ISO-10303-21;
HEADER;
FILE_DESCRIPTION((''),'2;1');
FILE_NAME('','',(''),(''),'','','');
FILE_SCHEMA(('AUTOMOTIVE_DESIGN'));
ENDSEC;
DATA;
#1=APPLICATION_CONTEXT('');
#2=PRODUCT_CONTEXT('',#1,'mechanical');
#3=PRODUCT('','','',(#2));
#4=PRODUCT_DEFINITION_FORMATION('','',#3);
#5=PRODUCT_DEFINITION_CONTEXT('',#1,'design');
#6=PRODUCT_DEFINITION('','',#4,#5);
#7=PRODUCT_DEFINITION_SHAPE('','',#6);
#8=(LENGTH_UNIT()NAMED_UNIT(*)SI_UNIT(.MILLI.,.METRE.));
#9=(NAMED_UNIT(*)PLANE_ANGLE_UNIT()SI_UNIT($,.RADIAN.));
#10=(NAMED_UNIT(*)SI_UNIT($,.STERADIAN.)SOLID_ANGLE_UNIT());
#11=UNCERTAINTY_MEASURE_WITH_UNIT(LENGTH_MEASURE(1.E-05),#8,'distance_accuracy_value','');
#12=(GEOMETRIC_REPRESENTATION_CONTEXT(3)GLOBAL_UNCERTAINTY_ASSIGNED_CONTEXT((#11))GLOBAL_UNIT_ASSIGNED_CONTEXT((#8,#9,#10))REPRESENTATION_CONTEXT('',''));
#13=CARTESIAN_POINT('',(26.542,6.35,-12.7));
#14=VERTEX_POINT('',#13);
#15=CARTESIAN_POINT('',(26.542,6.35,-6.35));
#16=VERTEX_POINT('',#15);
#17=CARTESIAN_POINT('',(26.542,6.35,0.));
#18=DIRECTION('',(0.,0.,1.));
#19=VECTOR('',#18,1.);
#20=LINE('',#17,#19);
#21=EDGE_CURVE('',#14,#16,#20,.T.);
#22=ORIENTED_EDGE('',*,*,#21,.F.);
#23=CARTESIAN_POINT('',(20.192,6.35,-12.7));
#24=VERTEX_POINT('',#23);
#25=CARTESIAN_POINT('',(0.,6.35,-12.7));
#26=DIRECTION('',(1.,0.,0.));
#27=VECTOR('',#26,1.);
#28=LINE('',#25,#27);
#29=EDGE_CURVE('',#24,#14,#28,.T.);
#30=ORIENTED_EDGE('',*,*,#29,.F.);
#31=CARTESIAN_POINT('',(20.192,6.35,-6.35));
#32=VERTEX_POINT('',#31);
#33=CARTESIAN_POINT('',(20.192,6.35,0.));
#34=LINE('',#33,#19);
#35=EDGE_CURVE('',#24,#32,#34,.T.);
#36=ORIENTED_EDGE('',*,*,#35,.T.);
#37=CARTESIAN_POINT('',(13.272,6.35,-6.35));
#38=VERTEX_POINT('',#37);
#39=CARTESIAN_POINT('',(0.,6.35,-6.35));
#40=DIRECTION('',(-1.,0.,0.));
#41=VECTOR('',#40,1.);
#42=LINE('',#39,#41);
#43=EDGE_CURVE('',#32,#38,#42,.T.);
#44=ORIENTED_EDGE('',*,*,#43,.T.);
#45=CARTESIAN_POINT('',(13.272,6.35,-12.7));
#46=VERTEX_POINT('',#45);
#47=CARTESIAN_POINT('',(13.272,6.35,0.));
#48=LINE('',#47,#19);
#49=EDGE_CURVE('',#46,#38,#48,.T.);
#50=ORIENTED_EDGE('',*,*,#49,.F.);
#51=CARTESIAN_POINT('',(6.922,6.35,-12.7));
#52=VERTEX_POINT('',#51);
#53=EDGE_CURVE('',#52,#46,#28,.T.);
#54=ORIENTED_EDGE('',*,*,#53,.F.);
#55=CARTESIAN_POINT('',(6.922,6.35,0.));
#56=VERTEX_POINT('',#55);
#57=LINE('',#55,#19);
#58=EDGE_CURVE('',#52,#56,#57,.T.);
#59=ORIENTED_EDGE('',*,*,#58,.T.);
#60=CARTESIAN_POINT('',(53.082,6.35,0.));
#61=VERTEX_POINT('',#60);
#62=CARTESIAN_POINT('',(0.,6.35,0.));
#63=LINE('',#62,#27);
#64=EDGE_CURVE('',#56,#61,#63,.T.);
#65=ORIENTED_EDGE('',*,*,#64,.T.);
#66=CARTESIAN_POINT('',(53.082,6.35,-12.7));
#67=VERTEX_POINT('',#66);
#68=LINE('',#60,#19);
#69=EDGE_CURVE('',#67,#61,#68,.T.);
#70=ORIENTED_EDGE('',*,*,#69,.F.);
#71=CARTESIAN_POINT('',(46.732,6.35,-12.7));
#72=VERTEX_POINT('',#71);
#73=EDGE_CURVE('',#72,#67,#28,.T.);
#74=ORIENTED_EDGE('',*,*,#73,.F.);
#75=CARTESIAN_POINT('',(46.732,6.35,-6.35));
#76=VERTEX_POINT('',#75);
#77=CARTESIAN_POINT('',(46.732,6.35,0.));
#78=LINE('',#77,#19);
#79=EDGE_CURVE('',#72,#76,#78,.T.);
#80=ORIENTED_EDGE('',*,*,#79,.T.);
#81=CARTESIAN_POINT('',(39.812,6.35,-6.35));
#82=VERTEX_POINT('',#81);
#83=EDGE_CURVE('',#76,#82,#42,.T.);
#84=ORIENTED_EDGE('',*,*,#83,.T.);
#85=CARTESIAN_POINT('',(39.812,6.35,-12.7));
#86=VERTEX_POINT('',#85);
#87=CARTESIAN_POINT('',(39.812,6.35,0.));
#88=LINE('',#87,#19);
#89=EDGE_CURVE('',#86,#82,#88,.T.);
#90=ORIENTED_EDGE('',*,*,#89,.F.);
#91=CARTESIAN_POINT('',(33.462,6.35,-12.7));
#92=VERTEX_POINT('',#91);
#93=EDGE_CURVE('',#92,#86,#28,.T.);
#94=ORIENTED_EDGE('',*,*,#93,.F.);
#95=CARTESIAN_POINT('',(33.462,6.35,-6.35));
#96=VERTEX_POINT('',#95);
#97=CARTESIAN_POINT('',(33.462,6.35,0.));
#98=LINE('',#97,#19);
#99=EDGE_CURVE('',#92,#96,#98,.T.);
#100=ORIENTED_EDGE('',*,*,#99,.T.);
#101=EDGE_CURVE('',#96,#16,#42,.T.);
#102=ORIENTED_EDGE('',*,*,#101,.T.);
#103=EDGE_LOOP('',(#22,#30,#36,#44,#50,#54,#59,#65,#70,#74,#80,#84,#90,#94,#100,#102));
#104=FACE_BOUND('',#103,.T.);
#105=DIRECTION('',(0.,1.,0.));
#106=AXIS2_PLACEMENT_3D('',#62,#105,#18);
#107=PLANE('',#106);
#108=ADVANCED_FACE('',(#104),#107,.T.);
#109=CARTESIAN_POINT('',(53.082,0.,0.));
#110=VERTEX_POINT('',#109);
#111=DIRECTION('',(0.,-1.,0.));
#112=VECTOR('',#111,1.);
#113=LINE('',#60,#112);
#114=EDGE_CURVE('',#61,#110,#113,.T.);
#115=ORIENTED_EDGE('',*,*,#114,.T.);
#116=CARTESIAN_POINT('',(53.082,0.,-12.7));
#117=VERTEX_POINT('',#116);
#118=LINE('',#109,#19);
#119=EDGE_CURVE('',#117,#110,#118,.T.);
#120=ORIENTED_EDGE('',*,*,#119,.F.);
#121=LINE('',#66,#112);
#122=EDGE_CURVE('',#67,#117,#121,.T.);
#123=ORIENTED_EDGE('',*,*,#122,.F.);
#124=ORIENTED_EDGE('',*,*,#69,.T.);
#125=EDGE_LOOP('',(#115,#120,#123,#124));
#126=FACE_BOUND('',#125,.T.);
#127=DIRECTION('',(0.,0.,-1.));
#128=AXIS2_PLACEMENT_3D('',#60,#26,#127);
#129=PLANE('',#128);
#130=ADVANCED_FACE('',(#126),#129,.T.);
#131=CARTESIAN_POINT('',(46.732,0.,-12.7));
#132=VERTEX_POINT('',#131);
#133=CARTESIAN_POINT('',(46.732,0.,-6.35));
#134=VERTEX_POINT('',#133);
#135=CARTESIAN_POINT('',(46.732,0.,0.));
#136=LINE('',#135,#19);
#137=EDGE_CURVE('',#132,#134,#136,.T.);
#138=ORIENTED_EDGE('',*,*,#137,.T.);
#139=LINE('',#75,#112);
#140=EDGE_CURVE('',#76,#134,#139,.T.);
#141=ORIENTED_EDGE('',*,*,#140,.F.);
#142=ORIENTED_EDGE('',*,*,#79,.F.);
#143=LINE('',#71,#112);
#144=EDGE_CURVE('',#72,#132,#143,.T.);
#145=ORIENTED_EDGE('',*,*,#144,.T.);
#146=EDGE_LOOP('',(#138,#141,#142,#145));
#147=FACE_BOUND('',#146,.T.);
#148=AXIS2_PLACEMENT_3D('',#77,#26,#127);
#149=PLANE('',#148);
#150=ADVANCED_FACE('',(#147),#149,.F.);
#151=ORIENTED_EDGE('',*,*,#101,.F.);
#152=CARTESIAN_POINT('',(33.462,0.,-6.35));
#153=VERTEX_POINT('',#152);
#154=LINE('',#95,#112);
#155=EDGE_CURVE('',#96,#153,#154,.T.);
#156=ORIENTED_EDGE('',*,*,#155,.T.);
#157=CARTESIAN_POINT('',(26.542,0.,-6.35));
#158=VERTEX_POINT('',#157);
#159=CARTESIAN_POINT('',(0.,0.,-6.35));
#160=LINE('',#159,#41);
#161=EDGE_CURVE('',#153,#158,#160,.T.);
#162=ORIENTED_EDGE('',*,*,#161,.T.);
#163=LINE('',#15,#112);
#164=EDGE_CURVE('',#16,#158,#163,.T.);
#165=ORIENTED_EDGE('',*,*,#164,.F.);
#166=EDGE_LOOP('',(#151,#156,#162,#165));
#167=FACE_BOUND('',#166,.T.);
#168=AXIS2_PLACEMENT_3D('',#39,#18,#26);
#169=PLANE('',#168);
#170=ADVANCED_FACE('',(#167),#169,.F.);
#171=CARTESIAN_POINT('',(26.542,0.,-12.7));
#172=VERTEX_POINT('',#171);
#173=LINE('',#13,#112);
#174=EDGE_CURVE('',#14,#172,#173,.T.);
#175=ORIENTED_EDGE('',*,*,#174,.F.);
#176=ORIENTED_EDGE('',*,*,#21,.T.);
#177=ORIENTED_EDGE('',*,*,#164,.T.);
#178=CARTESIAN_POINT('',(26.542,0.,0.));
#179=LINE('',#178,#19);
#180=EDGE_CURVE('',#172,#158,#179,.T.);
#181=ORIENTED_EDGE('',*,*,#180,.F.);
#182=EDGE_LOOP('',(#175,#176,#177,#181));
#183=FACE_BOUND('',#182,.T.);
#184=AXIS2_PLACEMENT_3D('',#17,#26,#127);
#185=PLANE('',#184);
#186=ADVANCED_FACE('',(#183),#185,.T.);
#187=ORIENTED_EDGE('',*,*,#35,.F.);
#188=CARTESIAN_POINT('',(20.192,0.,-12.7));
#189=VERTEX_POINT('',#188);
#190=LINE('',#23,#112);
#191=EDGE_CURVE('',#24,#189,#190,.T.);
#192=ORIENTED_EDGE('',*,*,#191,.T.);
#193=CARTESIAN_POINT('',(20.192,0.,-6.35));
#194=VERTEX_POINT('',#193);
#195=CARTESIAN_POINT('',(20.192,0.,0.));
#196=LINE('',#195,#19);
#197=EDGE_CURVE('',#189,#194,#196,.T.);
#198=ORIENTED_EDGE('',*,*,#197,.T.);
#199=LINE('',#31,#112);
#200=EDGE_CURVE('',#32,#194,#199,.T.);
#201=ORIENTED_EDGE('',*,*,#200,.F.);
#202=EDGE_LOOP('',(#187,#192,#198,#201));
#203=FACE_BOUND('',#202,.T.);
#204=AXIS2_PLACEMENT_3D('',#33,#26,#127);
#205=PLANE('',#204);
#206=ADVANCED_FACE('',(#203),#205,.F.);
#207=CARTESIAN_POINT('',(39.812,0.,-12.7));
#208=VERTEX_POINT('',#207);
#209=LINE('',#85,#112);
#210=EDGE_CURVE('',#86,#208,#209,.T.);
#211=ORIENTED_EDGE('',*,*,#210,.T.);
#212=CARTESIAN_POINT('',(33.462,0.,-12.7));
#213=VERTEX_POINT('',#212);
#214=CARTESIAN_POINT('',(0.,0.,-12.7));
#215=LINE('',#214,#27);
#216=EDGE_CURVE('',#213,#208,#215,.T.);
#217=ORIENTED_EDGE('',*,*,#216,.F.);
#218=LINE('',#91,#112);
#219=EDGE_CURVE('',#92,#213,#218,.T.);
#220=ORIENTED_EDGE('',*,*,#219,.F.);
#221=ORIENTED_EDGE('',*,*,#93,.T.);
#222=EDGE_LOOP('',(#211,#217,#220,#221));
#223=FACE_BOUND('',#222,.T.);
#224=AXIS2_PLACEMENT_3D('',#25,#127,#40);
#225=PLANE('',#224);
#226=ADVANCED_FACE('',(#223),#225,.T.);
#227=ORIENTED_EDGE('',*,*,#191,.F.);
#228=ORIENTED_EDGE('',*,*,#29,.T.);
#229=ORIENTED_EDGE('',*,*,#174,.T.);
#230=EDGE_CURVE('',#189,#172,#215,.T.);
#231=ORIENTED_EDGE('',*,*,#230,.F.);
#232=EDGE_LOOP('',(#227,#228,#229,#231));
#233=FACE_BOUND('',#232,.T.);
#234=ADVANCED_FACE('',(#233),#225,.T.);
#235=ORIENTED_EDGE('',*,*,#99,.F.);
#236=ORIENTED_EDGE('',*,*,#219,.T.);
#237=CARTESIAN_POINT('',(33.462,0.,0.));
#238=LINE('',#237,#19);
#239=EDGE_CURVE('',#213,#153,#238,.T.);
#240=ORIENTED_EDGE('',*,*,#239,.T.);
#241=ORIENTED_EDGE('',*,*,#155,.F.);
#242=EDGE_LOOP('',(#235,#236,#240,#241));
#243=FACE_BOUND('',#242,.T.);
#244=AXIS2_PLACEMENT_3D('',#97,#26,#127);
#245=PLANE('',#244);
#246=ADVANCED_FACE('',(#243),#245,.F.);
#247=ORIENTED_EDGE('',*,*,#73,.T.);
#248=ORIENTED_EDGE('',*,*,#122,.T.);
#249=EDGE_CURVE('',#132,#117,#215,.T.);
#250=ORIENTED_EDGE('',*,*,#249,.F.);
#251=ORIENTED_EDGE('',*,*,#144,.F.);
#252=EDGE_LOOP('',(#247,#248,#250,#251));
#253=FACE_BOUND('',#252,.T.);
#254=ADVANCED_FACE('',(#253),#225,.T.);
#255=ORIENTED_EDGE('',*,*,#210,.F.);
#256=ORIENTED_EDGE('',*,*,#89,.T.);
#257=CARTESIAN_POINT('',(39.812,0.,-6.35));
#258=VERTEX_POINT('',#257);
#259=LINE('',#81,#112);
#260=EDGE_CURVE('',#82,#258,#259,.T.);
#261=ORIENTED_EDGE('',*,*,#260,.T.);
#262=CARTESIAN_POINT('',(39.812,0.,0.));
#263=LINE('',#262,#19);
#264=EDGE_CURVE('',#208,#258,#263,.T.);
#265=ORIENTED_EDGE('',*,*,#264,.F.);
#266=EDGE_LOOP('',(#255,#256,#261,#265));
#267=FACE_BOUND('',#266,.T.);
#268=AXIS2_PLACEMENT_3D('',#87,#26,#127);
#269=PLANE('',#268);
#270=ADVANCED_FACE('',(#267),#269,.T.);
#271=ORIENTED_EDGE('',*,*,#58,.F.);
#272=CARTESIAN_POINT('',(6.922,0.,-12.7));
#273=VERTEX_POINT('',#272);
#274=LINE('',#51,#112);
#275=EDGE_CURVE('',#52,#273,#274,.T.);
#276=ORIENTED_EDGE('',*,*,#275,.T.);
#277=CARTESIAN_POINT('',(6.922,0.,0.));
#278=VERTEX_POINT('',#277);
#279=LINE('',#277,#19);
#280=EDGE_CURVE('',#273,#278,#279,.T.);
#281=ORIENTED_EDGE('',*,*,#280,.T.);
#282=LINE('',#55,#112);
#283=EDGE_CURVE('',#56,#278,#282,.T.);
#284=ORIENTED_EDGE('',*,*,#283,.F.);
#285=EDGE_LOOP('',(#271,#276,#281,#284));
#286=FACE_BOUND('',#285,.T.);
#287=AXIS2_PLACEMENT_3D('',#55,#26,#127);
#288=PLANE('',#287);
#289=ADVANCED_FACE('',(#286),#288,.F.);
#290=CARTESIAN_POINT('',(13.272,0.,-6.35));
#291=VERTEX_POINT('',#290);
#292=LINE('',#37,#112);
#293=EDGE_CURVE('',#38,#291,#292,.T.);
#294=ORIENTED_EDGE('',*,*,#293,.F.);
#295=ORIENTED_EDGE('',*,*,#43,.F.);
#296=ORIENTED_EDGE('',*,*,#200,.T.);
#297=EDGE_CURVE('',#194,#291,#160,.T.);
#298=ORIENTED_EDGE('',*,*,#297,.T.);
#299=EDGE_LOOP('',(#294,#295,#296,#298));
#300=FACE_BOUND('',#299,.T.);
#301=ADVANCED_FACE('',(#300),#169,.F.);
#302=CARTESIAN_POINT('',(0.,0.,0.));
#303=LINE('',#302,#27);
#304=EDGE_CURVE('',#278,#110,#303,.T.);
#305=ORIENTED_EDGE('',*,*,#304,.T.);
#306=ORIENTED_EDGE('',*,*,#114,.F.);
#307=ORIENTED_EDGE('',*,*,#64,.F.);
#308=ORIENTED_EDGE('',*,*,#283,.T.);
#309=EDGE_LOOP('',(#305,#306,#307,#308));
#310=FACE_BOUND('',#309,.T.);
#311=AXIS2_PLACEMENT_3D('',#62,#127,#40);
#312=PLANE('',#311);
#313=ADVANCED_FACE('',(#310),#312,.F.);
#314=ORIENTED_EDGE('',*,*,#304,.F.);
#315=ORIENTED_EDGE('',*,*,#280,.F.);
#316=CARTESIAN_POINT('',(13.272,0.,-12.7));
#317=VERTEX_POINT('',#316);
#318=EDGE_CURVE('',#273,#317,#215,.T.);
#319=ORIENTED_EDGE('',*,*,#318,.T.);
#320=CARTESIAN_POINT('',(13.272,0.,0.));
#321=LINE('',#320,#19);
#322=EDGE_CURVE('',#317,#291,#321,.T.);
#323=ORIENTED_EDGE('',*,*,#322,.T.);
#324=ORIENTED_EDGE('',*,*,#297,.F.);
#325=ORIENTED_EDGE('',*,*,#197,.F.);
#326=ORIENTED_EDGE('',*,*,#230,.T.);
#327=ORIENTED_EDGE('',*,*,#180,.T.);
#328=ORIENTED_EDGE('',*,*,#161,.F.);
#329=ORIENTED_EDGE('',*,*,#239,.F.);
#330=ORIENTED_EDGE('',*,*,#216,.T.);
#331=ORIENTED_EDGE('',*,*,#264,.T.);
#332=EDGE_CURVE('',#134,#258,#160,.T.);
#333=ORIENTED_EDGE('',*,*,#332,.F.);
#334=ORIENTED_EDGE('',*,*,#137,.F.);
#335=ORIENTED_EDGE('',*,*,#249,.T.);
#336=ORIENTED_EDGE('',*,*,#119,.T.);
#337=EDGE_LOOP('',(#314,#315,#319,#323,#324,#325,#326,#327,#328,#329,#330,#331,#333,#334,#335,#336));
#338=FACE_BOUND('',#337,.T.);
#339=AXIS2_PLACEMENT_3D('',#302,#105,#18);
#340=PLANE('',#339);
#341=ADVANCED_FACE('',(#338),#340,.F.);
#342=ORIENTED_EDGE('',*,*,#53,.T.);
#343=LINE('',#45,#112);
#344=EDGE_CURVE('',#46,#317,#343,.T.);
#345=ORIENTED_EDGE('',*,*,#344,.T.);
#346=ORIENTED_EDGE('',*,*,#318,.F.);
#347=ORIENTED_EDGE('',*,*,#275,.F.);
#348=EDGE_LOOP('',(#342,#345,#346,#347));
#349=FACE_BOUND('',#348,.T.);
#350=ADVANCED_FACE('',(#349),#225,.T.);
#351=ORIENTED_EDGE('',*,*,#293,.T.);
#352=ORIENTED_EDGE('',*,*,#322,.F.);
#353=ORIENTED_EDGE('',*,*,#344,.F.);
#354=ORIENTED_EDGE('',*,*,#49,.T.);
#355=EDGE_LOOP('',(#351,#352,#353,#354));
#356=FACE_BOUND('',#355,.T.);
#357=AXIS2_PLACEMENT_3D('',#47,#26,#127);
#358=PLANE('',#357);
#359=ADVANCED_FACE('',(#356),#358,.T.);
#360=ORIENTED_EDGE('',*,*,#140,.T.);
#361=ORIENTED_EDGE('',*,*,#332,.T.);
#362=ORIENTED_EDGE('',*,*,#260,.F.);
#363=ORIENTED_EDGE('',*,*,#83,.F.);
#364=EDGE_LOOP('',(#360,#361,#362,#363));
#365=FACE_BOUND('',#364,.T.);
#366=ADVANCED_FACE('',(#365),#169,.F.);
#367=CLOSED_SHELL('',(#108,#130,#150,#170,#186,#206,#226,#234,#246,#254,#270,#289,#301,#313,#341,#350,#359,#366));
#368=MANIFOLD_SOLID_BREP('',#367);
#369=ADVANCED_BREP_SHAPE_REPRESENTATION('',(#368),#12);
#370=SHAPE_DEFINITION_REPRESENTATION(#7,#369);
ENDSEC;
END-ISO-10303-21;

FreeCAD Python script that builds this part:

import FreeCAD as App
import Part
import Sketcher
Q = App.Units.Quantity


def add_polygon(sketch, points):
    """Adds a closed chain of lines whose ends are joined by coincident constraints."""
    first, n = sketch.GeometryCount, len(points)
    for a, b in zip(points, points[1:] + points[:1]):
        sketch.addGeometry(Part.LineSegment(App.Vector(*a, 0), App.Vector(*b, 0)), False)
    for i in range(n):
        sketch.addConstraint(Sketcher.Constraint("Coincident", first + i, 2, first + (i + 1) % n, 1))

doc = App.newDocument("Part")
body = doc.addObject("PartDesign::Body", "Body")

sketch1 = body.newObject("Sketcher::SketchObject", "Sketch")
sketch1.AttachmentSupport = (doc.getObject("XZ_Plane"), [""])
sketch1.MapMode = "FlatFace"
add_polygon(sketch1, [(7, 0), (53, 0), (53, -13), (47, -13), (47, -6), (40, -6), (40, -13), (33, -13), (33, -6), (27, -6), (27, -13), (20, -13), (20, -6), (13, -6), (13, -13), (7, -13)])
sketch1.addConstraint(Sketcher.Constraint("Horizontal", 0))
sketch1.addConstraint(Sketcher.Constraint("Vertical", 1))
sketch1.addConstraint(Sketcher.Constraint("Horizontal", 2))
sketch1.addConstraint(Sketcher.Constraint("Vertical", 3))
sketch1.addConstraint(Sketcher.Constraint("Horizontal", 4))
sketch1.addConstraint(Sketcher.Constraint("Vertical", 5))
sketch1.addConstraint(Sketcher.Constraint("Horizontal", 6))
sketch1.addConstraint(Sketcher.Constraint("Vertical", 7))
sketch1.addConstraint(Sketcher.Constraint("Horizontal", 8))
sketch1.addConstraint(Sketcher.Constraint("Vertical", 9))
sketch1.addConstraint(Sketcher.Constraint("Horizontal", 10))
sketch1.addConstraint(Sketcher.Constraint("Vertical", 11))
sketch1.addConstraint(Sketcher.Constraint("Horizontal", 12))
sketch1.addConstraint(Sketcher.Constraint("Vertical", 13))
sketch1.addConstraint(Sketcher.Constraint("Horizontal", 14))
sketch1.addConstraint(Sketcher.Constraint("Vertical", 15))
sketch1.addConstraint(Sketcher.Constraint("PointOnObject", 0, 2, -1))
sketch1.addConstraint(Sketcher.Constraint("Horizontal", 2, 2, 5, 2))
sketch1.addConstraint(Sketcher.Constraint("Horizontal", 4, 2, 7, 2))
sketch1.addConstraint(Sketcher.Constraint("Horizontal", 6, 2, 9, 2))
sketch1.addConstraint(Sketcher.Constraint("Horizontal", 8, 2, 11, 2))
sketch1.addConstraint(Sketcher.Constraint("Horizontal", 10, 2, 13, 2))
sketch1.addConstraint(Sketcher.Constraint("Equal", 2, 6))
sketch1.addConstraint(Sketcher.Constraint("Equal", 4, 8))
sketch1.addConstraint(Sketcher.Constraint("Equal", 6, 10))
sketch1.addConstraint(Sketcher.Constraint("Equal", 8, 12))
sketch1.addConstraint(Sketcher.Constraint("Equal", 10, 14))
sketch1.addConstraint(Sketcher.Constraint("Equal", 14, 3))
sketch1.addConstraint(Sketcher.Constraint("DistanceY", 1, 2, 1, 1, Q("0.5 in")))
sketch1.addConstraint(Sketcher.Constraint("DistanceX", 2, 2, 2, 1, Q("0.25 in")))
sketch1.addConstraint(Sketcher.Constraint("DistanceX", 0, 1, 0, 2, Q("46.16 mm")))
sketch1.addConstraint(Sketcher.Constraint("DistanceX", -1, 1, 0, 2, Q("53.082 mm")))
pad1 = body.newObject("PartDesign::Pad", "Pad")
pad1.Profile = sketch1
pad1.Length = Q("0.25 in")
pad1.Reversed = True

doc.recompute()
